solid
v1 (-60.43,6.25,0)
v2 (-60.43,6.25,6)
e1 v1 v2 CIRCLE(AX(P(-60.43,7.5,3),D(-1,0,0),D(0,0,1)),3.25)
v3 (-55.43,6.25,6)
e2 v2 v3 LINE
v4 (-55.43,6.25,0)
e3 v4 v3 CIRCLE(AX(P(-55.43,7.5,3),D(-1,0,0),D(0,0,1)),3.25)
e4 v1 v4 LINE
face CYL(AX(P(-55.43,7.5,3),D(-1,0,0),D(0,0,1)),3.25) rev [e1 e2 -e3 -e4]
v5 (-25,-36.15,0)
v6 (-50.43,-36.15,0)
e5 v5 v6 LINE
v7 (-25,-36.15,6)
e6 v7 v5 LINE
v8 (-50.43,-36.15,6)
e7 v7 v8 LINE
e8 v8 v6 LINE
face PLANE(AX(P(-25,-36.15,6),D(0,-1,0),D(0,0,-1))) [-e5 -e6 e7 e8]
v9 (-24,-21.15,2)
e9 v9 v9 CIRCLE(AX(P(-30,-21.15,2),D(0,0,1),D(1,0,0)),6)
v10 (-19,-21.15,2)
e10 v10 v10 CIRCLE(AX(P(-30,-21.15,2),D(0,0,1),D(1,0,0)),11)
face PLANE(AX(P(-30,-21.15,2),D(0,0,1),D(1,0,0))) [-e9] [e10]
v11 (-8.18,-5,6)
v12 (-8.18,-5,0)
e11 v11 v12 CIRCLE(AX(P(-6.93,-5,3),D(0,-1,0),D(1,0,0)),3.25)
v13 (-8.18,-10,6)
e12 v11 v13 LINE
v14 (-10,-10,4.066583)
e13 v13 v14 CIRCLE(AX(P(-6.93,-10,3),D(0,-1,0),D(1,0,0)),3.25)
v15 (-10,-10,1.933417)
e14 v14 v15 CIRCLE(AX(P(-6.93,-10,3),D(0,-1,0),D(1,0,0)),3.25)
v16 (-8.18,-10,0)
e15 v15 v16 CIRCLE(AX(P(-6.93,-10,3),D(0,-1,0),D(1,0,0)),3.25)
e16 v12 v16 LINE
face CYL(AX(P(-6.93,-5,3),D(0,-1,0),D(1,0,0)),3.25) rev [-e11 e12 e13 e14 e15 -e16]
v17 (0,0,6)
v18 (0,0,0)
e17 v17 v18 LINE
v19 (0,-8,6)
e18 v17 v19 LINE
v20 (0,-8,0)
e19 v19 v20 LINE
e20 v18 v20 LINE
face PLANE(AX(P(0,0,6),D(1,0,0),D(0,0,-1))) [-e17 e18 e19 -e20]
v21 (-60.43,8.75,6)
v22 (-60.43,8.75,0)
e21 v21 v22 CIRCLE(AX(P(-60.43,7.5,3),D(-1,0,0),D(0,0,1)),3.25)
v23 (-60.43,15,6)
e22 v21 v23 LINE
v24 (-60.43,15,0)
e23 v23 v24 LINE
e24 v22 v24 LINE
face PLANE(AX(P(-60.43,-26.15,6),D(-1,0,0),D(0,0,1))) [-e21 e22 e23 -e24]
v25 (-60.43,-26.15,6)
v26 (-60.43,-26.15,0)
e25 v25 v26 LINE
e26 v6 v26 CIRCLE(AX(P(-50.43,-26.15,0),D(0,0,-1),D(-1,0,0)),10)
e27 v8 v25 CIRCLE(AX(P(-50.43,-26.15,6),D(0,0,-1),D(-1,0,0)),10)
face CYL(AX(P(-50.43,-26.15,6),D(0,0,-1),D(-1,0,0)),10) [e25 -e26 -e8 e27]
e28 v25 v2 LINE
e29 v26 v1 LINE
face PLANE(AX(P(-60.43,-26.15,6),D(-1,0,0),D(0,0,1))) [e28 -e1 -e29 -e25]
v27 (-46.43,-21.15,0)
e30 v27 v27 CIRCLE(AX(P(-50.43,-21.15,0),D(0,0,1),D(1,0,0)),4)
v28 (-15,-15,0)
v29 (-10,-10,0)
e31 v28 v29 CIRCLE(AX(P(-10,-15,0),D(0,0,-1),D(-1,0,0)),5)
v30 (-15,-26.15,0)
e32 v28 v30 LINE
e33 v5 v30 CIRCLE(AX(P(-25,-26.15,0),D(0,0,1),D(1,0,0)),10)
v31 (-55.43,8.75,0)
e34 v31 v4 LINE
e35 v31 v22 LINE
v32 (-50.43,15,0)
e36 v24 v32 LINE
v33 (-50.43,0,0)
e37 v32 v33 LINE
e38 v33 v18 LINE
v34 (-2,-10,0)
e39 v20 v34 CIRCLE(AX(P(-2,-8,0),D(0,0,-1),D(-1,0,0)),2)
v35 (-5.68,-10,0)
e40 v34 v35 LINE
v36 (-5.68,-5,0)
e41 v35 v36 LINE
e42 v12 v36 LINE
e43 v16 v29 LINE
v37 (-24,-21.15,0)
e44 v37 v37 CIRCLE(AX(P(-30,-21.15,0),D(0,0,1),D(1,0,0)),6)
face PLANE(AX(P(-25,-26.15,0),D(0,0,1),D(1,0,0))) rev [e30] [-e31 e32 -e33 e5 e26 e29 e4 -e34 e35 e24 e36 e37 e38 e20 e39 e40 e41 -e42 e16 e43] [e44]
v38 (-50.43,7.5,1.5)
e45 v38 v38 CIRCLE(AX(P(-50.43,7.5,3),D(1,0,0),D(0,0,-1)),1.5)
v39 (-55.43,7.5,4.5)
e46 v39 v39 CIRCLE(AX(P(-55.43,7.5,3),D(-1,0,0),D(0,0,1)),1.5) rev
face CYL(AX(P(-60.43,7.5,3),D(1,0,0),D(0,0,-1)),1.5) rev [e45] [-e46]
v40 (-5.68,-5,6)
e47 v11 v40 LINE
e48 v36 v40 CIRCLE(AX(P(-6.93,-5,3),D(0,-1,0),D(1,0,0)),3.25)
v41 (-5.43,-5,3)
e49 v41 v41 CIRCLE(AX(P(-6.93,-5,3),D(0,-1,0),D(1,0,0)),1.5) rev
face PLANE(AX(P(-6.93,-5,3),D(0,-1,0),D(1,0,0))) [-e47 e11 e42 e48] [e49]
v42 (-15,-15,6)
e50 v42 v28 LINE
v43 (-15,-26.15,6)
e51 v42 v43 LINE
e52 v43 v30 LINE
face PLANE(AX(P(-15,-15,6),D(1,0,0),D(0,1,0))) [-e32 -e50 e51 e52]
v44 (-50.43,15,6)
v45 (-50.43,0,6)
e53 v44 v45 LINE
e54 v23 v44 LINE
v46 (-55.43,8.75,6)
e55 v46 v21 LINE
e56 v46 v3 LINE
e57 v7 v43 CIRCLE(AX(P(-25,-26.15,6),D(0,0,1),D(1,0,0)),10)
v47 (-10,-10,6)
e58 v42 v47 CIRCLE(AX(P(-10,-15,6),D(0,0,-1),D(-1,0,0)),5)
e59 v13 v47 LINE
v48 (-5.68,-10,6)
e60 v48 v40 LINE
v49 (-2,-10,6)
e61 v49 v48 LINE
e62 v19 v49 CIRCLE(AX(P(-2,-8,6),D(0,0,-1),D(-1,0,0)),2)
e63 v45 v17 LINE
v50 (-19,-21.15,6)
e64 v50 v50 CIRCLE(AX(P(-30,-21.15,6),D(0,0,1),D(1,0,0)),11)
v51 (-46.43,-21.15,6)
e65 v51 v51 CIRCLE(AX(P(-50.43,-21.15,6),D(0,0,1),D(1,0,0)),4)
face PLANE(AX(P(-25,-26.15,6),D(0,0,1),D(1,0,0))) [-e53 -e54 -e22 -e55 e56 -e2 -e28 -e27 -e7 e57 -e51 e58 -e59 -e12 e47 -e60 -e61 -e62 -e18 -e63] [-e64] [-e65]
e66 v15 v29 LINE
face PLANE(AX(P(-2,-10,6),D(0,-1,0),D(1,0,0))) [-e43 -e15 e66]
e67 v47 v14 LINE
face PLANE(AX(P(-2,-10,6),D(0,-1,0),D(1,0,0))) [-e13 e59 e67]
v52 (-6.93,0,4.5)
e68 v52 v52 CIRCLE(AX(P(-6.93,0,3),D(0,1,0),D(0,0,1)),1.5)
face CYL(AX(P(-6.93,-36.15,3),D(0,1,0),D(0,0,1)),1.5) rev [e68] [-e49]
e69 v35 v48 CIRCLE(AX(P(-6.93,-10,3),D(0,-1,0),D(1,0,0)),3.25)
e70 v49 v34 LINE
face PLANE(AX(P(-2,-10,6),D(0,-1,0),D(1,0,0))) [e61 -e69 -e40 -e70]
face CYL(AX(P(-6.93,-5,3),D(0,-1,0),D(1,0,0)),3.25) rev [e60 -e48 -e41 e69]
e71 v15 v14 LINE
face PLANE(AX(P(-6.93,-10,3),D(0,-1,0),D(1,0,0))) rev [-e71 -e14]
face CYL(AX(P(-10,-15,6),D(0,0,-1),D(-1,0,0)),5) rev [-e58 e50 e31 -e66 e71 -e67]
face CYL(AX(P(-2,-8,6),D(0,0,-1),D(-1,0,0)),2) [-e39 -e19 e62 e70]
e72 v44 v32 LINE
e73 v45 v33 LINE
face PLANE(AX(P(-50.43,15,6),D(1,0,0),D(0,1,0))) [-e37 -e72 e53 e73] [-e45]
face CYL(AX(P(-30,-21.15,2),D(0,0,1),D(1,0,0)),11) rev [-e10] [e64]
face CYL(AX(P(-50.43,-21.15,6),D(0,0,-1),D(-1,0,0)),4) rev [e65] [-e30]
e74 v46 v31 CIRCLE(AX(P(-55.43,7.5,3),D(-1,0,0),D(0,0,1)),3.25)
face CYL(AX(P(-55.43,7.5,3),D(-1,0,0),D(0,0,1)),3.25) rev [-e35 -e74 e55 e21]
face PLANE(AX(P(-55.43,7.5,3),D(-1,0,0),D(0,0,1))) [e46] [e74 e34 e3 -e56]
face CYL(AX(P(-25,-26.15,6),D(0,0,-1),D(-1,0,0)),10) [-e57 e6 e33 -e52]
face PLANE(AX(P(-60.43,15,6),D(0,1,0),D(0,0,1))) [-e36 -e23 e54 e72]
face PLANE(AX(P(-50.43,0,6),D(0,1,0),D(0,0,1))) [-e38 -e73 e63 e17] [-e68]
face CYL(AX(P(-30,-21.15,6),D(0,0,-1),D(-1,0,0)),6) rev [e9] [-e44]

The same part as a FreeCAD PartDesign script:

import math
import FreeCAD as App
import Part
import Sketcher
from FreeCAD import Vector

doc = App.newDocument("Part")
params = doc.addObject("Spreadsheet::Sheet", "Params")
for row, (alias, value) in enumerate([
    ("sketch1_diameter", "12 mm"),
    ("sketch1_diameter2", "8 mm"),
    ("sketch1_radius", "10 mm"),
    ("sketch1_radius2", "5 mm"),
    ("sketch1_radius3", "2 mm"),
    ("pad1_length", "6 mm"),
    ("sketch2_diameter", "22 mm"),
    ("pocket1_length", "4 mm"),
    ("sketch3_diameter", "3 mm"),
    ("sketch4_diameter", "3 mm"),
    ("sketch5_diameter", "6.5 mm"),
    ("pocket4_length", "5 mm"),
    ("sketch6_diameter", "6.5 mm"),
    ("pocket5_length", "5 mm"),
], start=1):
    params.set(f"A{row}", alias)
    params.set(f"B{row}", "=" + value)
    params.setAlias(f"B{row}", alias)

body = doc.addObject("PartDesign::Body", "Body")

# Sketch on XY plane
sketch1 = body.newObject("Sketcher::SketchObject", "Sketch")
sketch1.AttachmentSupport = (doc.getObject("XY_Plane"), [""])
sketch1.MapMode = "FlatFace"
sketch1.addGeometry([
    Part.LineSegment(Vector(0, 0, 0), Vector(-50.4, 0, 0)),  # 0
    Part.LineSegment(Vector(-50.4, 0, 0), Vector(-50.4, 15, 0)),  # 1
    Part.LineSegment(Vector(-50.4, 15, 0), Vector(-60.4, 15, 0)),  # 2
    Part.LineSegment(Vector(-60.4, 15, 0), Vector(-60.4, -26.1, 0)),  # 3
    Part.ArcOfCircle(Part.Circle(Vector(-50.4, -26.1, 0), Vector(0, 0, 1), 10), math.radians(180), math.radians(270)),  # 4
    Part.LineSegment(Vector(-50.4, -36.1, 0), Vector(-25, -36.1, 0)),  # 5
    Part.ArcOfCircle(Part.Circle(Vector(-25, -26.1, 0), Vector(0, 0, 1), 10), math.radians(-90), math.radians(0)),  # 6
    Part.LineSegment(Vector(-15, -26.1, 0), Vector(-15, -15, 0)),  # 7
    Part.ArcOfCircle(Part.Circle(Vector(-10, -15, 0), Vector(0, 0, 1), 5), math.radians(90), math.radians(180)),  # 8
    Part.LineSegment(Vector(-10, -10, 0), Vector(-2, -10, 0)),  # 9
    Part.ArcOfCircle(Part.Circle(Vector(-2, -8, 0), Vector(0, 0, 1), 2), math.radians(-90), math.radians(0)),  # 10
    Part.LineSegment(Vector(0, -8, 0), Vector(0, 0, 0)),  # 11
    Part.Circle(Vector(-30, -21.1, 0), Vector(0, 0, 1), 6),  # 12
    Part.Circle(Vector(-50.4, -21.1, 0), Vector(0, 0, 1), 4),  # 13
], False)
sketch1.addConstraint([
    Sketcher.Constraint("Coincident", 0, 2, 1, 1),
    Sketcher.Constraint("Coincident", 1, 2, 2, 1),
    Sketcher.Constraint("Coincident", 2, 2, 3, 1),
    Sketcher.Constraint("Tangent", 3, 2, 4, 1),
    Sketcher.Constraint("Tangent", 4, 2, 5, 1),
    Sketcher.Constraint("Tangent", 5, 2, 6, 1),
    Sketcher.Constraint("Tangent", 6, 2, 7, 1),
    Sketcher.Constraint("Tangent", 7, 2, 8, 2),
    Sketcher.Constraint("Tangent", 8, 1, 9, 1),
    Sketcher.Constraint("Tangent", 9, 2, 10, 1),
    Sketcher.Constraint("Tangent", 10, 2, 11, 1),
    Sketcher.Constraint("Coincident", 11, 2, 0, 1),
    Sketcher.Constraint("Horizontal", 0),
    Sketcher.Constraint("Vertical", 1),
    Sketcher.Constraint("Horizontal", 2),
    Sketcher.Constraint("Vertical", 3),
    Sketcher.Constraint("Horizontal", 5),
    Sketcher.Constraint("Vertical", 7),
    Sketcher.Constraint("Horizontal", 9),
    Sketcher.Constraint("Vertical", 11),
    Sketcher.Constraint("Coincident", 11, 2, -1, 1),
    Sketcher.Constraint("Equal", 4, 6),
    Sketcher.Constraint("Horizontal", 12, 3, 13, 3),
    Sketcher.Constraint("Vertical", 4, 3, 13, 3),
    Sketcher.Constraint("Vertical", 13, 3, 0, 2),
    Sketcher.Constraint("Equal", 9, 11),
    Sketcher.Constraint("Diameter", 12, 12.0),
    Sketcher.Constraint("Diameter", 13, 8.0),
    Sketcher.Constraint("Radius", 4, 10.0),
    Sketcher.Constraint("Radius", 8, 5.0),
    Sketcher.Constraint("Radius", 10, 2.0),
    Sketcher.Constraint("DistanceX", 9, 1, 9, 2, 8.0),
    Sketcher.Constraint("DistanceY", 1, 1, 1, 2, 15.0),
    Sketcher.Constraint("DistanceX", 12, 3, -1, 1, 30.0),
    Sketcher.Constraint("DistanceY", 6, 3, 12, 3, 5.0),
    Sketcher.Constraint("DistanceX", 0, 2, 0, 1, 50.43),
    Sketcher.Constraint("DistanceY", 3, 2, 3, 1, 41.15),
])
sketch1.setExpression("Constraints[26]", "Params.sketch1_diameter")
sketch1.setExpression("Constraints[27]", "Params.sketch1_diameter2")
sketch1.setExpression("Constraints[28]", "Params.sketch1_radius")
sketch1.setExpression("Constraints[29]", "Params.sketch1_radius2")
sketch1.setExpression("Constraints[30]", "Params.sketch1_radius3")
pad1 = body.newObject("PartDesign::Pad", "Pad")
pad1.Profile = sketch1
pad1.setExpression("Length", "Params.pad1_length")

# Sketch on XY plane
sketch2 = body.newObject("Sketcher::SketchObject", "Sketch001")
sketch2.AttachmentSupport = (doc.getObject("XY_Plane"), [""])
sketch2.MapMode = "FlatFace"
sketch2.AttachmentOffset = App.Placement(Vector(0, 0, 6), App.Rotation())
sketch2.addGeometry(Part.Circle(Vector(-30, -21, 0), Vector(0, 0, 1), 11), False)
sketch2.addConstraint([
    Sketcher.Constraint("Diameter", 0, 22.0),
    Sketcher.Constraint("DistanceX", 0, 3, -1, 1, 30.0),
    Sketcher.Constraint("DistanceY", 0, 3, -1, 1, 21.15),
])
sketch2.setExpression("Constraints[0]", "Params.sketch2_diameter")
pocket1 = body.newObject("PartDesign::Pocket", "Pocket")
pocket1.Profile = sketch2
pocket1.setExpression("Length", "Params.pocket1_length")

# Sketch on XZ plane
sketch3 = body.newObject("Sketcher::SketchObject", "Sketch002")
sketch3.AttachmentSupport = (doc.getObject("XZ_Plane"), [""])
sketch3.MapMode = "FlatFace"
sketch3.addGeometry(Part.Circle(Vector(-6.9, 3, 0), Vector(0, 0, 1), 1.5), False)
sketch3.addConstraint([
    Sketcher.Constraint("Diameter", 0, 3.0),
    Sketcher.Constraint("DistanceY", -1, 1, 0, 3, 3.0),
    Sketcher.Constraint("DistanceX", 0, 3, -1, 1, 6.93),
])
sketch3.setExpression("Constraints[0]", "Params.sketch3_diameter")
pocket2 = body.newObject("PartDesign::Pocket", "Pocket001")
pocket2.Profile = sketch3
pocket2.Type = "ThroughAll"
pocket2.Reversed = True

# Sketch on YZ plane
sketch4 = body.newObject("Sketcher::SketchObject", "Sketch003")
sketch4.AttachmentSupport = (doc.getObject("YZ_Plane"), [""])
sketch4.MapMode = "FlatFace"
sketch4.AttachmentOffset = App.Placement(Vector(0, 0, -50.43), App.Rotation())
sketch4.addGeometry(Part.Circle(Vector(7.5, 3, 0), Vector(0, 0, 1), 1.5), False)
sketch4.addConstraint([
    Sketcher.Constraint("Diameter", 0, 3.0),
    Sketcher.Constraint("DistanceY", -1, 1, 0, 3, 3.0),
    Sketcher.Constraint("DistanceX", -1, 1, 0, 3, 7.5),
])
sketch4.setExpression("Constraints[0]", "Params.sketch4_diameter")
pocket3 = body.newObject("PartDesign::Pocket", "Pocket002")
pocket3.Profile = sketch4
pocket3.Type = "ThroughAll"

# Sketch on YZ plane
sketch5 = body.newObject("Sketcher::SketchObject", "Sketch004")
sketch5.AttachmentSupport = (doc.getObject("YZ_Plane"), [""])
sketch5.MapMode = "FlatFace"
sketch5.AttachmentOffset = App.Placement(Vector(0, 0, -60.43), App.Rotation())
sketch5.addGeometry(Part.Circle(Vector(7.5, 3, 0), Vector(0, 0, 1), 3.2), False)
sketch5.addConstraint([
    Sketcher.Constraint("Diameter", 0, 6.5),
    Sketcher.Constraint("DistanceY", -1, 1, 0, 3, 3.0),
    Sketcher.Constraint("DistanceX", -1, 1, 0, 3, 7.5),
])
sketch5.setExpression("Constraints[0]", "Params.sketch5_diameter")
pocket4 = body.newObject("PartDesign::Pocket", "Pocket003")
pocket4.Profile = sketch5
pocket4.setExpression("Length", "Params.pocket4_length")
pocket4.Reversed = True

# Sketch on XZ plane
sketch6 = body.newObject("Sketcher::SketchObject", "Sketch005")
sketch6.AttachmentSupport = (doc.getObject("XZ_Plane"), [""])
sketch6.MapMode = "FlatFace"
sketch6.AttachmentOffset = App.Placement(Vector(0, 0, 10), App.Rotation())
sketch6.addGeometry(Part.Circle(Vector(-6.9, 3, 0), Vector(0, 0, 1), 3.2), False)
sketch6.addConstraint([
    Sketcher.Constraint("Diameter", 0, 6.5),
    Sketcher.Constraint("DistanceY", -1, 1, 0, 3, 3.0),
    Sketcher.Constraint("DistanceX", 0, 3, -1, 1, 6.93),
])
sketch6.setExpression("Constraints[0]", "Params.sketch6_diameter")
pocket5 = body.newObject("PartDesign::Pocket", "Pocket004")
pocket5.Profile = sketch6
pocket5.setExpression("Length", "Params.pocket5_length")

doc.recompute()
